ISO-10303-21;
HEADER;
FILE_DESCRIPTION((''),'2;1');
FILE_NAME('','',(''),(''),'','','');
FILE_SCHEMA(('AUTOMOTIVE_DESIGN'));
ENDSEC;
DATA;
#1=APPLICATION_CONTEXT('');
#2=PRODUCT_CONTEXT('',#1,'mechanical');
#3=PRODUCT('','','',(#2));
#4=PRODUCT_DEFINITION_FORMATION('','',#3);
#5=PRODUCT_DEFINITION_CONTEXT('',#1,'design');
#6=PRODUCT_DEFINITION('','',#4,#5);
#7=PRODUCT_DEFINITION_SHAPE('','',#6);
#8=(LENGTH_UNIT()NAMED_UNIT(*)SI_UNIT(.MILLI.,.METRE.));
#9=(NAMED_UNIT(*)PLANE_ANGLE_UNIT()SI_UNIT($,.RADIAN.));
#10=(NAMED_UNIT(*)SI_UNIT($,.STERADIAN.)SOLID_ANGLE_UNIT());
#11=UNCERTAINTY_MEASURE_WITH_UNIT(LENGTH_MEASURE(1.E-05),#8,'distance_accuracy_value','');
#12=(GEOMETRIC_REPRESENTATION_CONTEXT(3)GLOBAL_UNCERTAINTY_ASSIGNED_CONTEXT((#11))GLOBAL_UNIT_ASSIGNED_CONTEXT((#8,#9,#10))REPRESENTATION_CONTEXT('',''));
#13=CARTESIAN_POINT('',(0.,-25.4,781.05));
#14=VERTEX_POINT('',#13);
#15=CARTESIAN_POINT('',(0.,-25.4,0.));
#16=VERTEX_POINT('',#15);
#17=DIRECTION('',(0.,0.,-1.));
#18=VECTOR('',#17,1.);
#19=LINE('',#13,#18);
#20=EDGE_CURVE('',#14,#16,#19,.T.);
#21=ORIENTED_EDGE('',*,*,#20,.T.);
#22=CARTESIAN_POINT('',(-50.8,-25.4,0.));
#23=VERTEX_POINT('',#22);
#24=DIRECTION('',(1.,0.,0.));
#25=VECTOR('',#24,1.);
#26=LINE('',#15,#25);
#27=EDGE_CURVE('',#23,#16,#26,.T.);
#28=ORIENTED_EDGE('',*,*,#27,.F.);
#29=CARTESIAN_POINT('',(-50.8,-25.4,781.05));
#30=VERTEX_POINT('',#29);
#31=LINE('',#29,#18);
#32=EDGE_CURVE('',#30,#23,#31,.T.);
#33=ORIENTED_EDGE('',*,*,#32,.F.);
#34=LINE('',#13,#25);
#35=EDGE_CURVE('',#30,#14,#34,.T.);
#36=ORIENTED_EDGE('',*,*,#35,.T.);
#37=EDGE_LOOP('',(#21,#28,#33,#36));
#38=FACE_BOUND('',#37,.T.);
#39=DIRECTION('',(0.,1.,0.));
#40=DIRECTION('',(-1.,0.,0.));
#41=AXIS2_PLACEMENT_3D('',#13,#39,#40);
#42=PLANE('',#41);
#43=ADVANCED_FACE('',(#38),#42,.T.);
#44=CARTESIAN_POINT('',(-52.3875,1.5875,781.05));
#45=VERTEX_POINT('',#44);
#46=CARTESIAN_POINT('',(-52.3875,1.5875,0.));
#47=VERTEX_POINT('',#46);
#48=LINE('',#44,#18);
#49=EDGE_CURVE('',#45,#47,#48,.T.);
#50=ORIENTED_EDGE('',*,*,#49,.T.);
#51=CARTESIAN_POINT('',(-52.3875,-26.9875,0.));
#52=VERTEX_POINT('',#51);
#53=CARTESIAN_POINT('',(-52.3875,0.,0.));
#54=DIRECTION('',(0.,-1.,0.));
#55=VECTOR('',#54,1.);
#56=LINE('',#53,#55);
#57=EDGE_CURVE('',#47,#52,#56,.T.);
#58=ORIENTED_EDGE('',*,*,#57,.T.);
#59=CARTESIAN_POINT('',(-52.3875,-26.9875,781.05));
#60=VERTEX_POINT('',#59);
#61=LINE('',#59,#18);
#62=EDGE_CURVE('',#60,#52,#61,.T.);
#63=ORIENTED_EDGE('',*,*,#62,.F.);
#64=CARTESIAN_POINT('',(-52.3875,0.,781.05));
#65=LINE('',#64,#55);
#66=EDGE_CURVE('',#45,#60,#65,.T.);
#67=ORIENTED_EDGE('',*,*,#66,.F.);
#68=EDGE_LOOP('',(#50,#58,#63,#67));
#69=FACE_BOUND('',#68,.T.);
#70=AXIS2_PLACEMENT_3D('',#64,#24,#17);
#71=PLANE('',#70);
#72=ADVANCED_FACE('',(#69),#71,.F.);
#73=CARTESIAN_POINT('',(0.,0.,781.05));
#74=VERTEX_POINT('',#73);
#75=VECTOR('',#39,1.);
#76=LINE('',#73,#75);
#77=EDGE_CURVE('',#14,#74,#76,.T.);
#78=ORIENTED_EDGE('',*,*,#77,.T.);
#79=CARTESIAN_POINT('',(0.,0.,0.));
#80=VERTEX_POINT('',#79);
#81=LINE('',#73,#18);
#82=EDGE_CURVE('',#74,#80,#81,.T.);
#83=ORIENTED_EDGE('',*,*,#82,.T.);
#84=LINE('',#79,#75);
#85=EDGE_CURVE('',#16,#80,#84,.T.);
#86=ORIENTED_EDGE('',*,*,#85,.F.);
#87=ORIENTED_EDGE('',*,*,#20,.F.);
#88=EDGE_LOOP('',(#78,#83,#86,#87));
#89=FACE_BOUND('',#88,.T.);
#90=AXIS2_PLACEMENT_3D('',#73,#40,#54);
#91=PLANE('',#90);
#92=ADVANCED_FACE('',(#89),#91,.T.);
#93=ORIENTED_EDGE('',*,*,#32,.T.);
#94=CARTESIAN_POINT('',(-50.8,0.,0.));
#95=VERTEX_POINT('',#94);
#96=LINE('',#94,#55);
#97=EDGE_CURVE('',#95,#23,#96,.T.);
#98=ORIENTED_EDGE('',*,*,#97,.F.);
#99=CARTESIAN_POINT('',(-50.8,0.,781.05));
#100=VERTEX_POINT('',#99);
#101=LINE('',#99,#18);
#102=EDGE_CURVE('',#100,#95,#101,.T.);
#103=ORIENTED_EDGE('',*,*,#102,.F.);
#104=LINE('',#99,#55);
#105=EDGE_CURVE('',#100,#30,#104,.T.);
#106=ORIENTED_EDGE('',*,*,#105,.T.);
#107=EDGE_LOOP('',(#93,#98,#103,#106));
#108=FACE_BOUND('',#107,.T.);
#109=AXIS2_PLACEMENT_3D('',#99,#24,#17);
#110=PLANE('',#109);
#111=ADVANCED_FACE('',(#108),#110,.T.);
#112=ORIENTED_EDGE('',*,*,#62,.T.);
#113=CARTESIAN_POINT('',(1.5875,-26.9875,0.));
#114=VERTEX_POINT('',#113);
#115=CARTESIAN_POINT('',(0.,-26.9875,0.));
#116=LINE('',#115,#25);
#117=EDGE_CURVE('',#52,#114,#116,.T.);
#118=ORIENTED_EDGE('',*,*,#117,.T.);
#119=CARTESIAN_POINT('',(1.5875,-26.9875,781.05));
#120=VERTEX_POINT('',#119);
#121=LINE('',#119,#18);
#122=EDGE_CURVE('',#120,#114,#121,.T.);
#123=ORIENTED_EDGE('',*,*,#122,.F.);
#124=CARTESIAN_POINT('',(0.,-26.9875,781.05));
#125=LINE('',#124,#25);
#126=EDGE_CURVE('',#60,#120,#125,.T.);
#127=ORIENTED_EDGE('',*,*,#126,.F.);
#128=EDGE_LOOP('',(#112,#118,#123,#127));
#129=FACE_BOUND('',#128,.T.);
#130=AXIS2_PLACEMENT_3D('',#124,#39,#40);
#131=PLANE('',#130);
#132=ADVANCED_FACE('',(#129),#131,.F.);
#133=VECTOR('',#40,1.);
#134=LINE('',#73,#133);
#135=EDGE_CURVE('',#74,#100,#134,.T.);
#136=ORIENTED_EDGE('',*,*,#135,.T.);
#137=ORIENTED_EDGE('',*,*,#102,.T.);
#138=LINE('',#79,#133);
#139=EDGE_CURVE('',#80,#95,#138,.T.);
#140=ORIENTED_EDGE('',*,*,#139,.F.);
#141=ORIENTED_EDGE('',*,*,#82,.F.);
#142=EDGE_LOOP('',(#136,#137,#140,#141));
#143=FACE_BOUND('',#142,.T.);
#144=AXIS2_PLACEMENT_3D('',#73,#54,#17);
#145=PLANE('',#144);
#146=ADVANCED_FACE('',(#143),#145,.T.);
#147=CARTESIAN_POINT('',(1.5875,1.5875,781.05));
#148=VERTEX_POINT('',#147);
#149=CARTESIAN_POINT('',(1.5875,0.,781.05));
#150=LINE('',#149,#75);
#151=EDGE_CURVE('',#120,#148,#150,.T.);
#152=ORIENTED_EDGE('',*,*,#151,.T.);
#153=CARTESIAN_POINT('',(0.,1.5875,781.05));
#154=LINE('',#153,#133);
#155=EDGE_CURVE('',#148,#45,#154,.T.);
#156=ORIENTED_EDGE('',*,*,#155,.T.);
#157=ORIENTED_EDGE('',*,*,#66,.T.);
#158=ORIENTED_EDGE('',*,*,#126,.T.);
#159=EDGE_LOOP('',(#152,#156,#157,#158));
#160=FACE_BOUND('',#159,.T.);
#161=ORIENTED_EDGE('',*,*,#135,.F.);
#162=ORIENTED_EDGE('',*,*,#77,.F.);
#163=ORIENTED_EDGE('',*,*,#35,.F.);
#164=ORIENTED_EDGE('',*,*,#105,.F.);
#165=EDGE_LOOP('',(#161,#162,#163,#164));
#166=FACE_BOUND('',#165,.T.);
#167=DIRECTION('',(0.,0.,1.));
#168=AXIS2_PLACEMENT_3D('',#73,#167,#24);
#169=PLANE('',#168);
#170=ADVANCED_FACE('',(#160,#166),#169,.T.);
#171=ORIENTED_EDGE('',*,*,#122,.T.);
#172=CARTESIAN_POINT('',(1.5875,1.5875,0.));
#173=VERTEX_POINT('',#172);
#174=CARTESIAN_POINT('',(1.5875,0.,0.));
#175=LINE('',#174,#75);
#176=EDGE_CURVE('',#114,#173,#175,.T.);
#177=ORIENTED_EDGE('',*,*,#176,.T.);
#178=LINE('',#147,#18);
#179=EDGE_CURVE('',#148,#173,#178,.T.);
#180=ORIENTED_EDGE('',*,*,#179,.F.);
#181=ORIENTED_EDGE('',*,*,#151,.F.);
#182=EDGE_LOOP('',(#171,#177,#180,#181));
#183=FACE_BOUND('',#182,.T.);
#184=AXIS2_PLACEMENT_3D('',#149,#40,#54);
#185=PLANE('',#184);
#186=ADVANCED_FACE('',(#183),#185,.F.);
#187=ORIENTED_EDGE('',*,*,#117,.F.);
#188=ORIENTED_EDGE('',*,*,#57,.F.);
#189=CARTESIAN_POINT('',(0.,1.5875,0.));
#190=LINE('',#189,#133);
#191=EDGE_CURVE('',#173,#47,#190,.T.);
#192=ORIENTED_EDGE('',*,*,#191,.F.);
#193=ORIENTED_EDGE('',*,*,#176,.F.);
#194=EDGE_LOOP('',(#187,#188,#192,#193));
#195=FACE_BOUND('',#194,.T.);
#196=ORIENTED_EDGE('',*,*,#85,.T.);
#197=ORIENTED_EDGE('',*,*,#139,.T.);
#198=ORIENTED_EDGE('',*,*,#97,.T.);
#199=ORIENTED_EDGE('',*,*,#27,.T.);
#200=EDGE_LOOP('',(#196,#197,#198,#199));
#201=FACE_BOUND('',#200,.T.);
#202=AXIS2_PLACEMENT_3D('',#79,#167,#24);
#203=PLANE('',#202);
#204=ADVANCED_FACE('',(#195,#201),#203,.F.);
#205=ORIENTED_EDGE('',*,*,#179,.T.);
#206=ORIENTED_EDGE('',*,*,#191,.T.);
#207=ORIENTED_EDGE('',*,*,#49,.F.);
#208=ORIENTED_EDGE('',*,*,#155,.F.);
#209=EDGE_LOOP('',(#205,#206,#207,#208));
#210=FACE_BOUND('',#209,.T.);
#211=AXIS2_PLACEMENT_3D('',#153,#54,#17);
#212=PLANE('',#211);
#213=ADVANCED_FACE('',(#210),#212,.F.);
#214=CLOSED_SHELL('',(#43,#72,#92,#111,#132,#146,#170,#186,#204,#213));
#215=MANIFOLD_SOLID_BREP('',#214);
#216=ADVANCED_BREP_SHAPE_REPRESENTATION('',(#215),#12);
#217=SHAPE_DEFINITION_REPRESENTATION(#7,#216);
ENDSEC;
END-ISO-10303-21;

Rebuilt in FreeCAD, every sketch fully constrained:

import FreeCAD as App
import Part
import Sketcher
Q = App.Units.Quantity

doc = App.newDocument("Part")
params = doc.addObject("Spreadsheet::Sheet", "Params")
for row, (alias, value) in enumerate([
    ("sketch1_width", "2 in"),
    ("sketch1_height", "1 in"),
    ("sketch1_width2", "2.125 in"),
    ("sketch1_height2", "1.125 in"),
    ("pad1_length", "30.75 in"),
], start=1):
    params.set(f"A{row}", alias)
    params.set(f"B{row}", "=" + value)
    params.setAlias(f"B{row}", alias)

body = doc.addObject("PartDesign::Body", "Body")

sketch1 = doc.addObject("Sketcher::SketchObject", "Sketch")
body.addObject(sketch1)
sketch1.AttachmentSupport = (doc.XY_Plane, [""])
sketch1.MapMode = "FlatFace"
sketch1.addGeometry([
    Part.LineSegment(App.Vector(-52, 2, 0), App.Vector(-52, -27, 0)),
    Part.LineSegment(App.Vector(-52, -27, 0), App.Vector(2, -27, 0)),
    Part.LineSegment(App.Vector(2, -27, 0), App.Vector(2, 2, 0)),
    Part.LineSegment(App.Vector(2, 2, 0), App.Vector(-52, 2, 0)),
    Part.LineSegment(App.Vector(0, -25, 0), App.Vector(-51, -25, 0)),
    Part.LineSegment(App.Vector(-51, -25, 0), App.Vector(-51, 0, 0)),
    Part.LineSegment(App.Vector(-51, 0, 0), App.Vector(0, 0, 0)),
    Part.LineSegment(App.Vector(0, 0, 0), App.Vector(0, -25, 0)),
], False)
sketch1.addConstraint([
    Sketcher.Constraint("Coincident", 0, 2, 1, 1),
    Sketcher.Constraint("Coincident", 1, 2, 2, 1),
    Sketcher.Constraint("Coincident", 2, 2, 3, 1),
    Sketcher.Constraint("Coincident", 3, 2, 0, 1),
    Sketcher.Constraint("Coincident", 4, 2, 5, 1),
    Sketcher.Constraint("Coincident", 5, 2, 6, 1),
    Sketcher.Constraint("Coincident", 6, 2, 7, 1),
    Sketcher.Constraint("Coincident", 7, 2, 4, 1),
    Sketcher.Constraint("Vertical", 0),
    Sketcher.Constraint("Horizontal", 1),
    Sketcher.Constraint("Vertical", 2),
    Sketcher.Constraint("Horizontal", 3),
    Sketcher.Constraint("Horizontal", 4),
    Sketcher.Constraint("Vertical", 5),
    Sketcher.Constraint("Horizontal", 6),
    Sketcher.Constraint("Vertical", 7),
    Sketcher.Constraint("Coincident", 6, 2, -1, 1),
    Sketcher.Constraint("DistanceX", 4, 2, 4, 1, Q("2 in")),
    Sketcher.Constraint("DistanceY", 5, 1, 5, 2, Q("1 in")),
    Sketcher.Constraint("DistanceX", 1, 1, 1, 2, Q("2.125 in")),
    Sketcher.Constraint("DistanceY", 0, 2, 0, 1, Q("1.125 in")),
    Sketcher.Constraint("DistanceX", 0, 2, -1, 1, Q("2.0625 in")),
    Sketcher.Constraint("DistanceY", 0, 2, -1, 1, Q("1.0625 in")),
])
sketch1.setExpression("Constraints[17]", "Params.sketch1_width")
sketch1.setExpression("Constraints[18]", "Params.sketch1_height")
sketch1.setExpression("Constraints[19]", "Params.sketch1_width2")
sketch1.setExpression("Constraints[20]", "Params.sketch1_height2")
pad1 = doc.addObject("PartDesign::Pad", "Pad")
body.addObject(pad1)
pad1.Profile = sketch1
pad1.setExpression("Length", "Params.pad1_length")

doc.recompute()
